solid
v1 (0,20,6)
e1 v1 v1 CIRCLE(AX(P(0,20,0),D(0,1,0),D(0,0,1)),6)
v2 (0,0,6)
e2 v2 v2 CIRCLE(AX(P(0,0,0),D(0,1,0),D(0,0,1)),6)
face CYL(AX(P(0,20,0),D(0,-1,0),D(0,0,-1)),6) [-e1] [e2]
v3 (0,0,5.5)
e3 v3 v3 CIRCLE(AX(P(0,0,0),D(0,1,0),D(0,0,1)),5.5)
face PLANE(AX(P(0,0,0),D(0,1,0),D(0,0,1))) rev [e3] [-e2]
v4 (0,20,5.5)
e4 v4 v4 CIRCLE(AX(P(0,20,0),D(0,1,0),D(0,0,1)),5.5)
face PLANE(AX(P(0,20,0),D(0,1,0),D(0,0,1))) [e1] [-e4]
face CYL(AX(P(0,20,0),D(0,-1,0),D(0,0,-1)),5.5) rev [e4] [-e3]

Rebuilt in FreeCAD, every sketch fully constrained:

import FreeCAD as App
import Part
import Sketcher
Q = App.Units.Quantity

doc = App.newDocument("Part")
body = doc.addObject("PartDesign::Body", "Body")

sketch1 = body.newObject("Sketcher::SketchObject", "Sketch")
sketch1.AttachmentSupport = (doc.getObject("XZ_Plane"), [""])
sketch1.MapMode = "FlatFace"
sketch1.addGeometry([
    Part.Circle(App.Vector(0, 0, 0), App.Vector(0, 0, 1), 6),
    Part.Circle(App.Vector(0, 0, 0), App.Vector(0, 0, 1), 6),
], False)
sketch1.addConstraint([
    Sketcher.Constraint("Coincident", 0, 3, -1, 1),
    Sketcher.Constraint("Coincident", 1, 3, -1, 1),
    Sketcher.Constraint("Diameter", 0, Q("12 mm")),
    Sketcher.Constraint("Diameter", 1, Q("11 mm")),
])
pad1 = body.newObject("PartDesign::Pad", "Pad")
pad1.Profile = sketch1
pad1.Length = 20
pad1.Reversed = True

doc.recompute()
